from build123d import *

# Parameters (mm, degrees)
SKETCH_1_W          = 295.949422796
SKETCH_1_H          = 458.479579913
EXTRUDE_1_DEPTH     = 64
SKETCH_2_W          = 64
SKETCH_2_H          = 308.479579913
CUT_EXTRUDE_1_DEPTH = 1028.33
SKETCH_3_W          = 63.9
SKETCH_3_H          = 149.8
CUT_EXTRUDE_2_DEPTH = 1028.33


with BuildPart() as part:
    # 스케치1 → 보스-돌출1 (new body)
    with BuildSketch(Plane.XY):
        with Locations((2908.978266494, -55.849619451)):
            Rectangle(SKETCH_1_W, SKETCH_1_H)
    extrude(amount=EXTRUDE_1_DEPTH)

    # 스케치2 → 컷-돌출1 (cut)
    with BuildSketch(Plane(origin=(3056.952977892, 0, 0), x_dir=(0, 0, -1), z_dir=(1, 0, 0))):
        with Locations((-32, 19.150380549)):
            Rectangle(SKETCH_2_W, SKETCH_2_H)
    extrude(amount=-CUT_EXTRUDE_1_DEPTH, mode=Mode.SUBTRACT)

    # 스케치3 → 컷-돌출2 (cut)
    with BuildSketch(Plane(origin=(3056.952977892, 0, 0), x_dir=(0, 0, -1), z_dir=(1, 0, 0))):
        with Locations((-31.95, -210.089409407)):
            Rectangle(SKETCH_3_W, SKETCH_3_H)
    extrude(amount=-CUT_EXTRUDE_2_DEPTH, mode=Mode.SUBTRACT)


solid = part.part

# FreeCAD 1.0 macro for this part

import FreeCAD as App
import Part
import Sketcher

V = App.Vector

doc = App.newDocument("Part")
body = doc.addObject("PartDesign::Body", "Body")

# Sketch on XY plane
sketch1 = body.newObject("Sketcher::SketchObject", "Sketch")
sketch1.AttachmentSupport = (doc.getObject("XY_Plane"), [""])
sketch1.MapMode = "FlatFace"
sketch1.addGeometry([
    Part.LineSegment(V(2761, 173, 0), V(2761, -285, 0)),
    Part.LineSegment(V(2761, -285, 0), V(3057, -285, 0)),
    Part.LineSegment(V(3057, -285, 0), V(3057, 173, 0)),
    Part.LineSegment(V(3057, 173, 0), V(2761, 173, 0)),
], False)
sketch1.addConstraint([
    Sketcher.Constraint("Coincident", 0, 2, 1, 1),
    Sketcher.Constraint("Coincident", 1, 2, 2, 1),
    Sketcher.Constraint("Coincident", 2, 2, 3, 1),
    Sketcher.Constraint("Coincident", 3, 2, 0, 1),
    Sketcher.Constraint("Vertical", 0),
    Sketcher.Constraint("Horizontal", 1),
    Sketcher.Constraint("Vertical", 2),
    Sketcher.Constraint("Horizontal", 3),
    Sketcher.Constraint("DistanceY", 0, 2, 0, 1, 458.47958),
    Sketcher.Constraint("DistanceX", 1, 1, 1, 2, 295.949423),
    Sketcher.Constraint("DistanceY", 0, 2, -1, 1, 285.089409),
    Sketcher.Constraint("DistanceX", -1, 1, 0, 2, 2761.003555),
])
pad1 = body.newObject("PartDesign::Pad", "Pad")
pad1.Profile = sketch1
pad1.Length = 64

# Sketch on YZ plane
sketch2 = body.newObject("Sketcher::SketchObject", "Sketch001")
sketch2.AttachmentSupport = (doc.getObject("YZ_Plane"), [""])
sketch2.MapMode = "FlatFace"
sketch2.AttachmentOffset = App.Placement(V(0, 0, 3056.952978), App.Rotation())
sketch2.addGeometry([
    Part.LineSegment(V(173, 64, 0), V(-135, 64, 0)),
    Part.LineSegment(V(-135, 64, 0), V(-135, 0, 0)),
    Part.LineSegment(V(-135, 0, 0), V(173, 0, 0)),
    Part.LineSegment(V(173, 0, 0), V(173, 64, 0)),
], False)
sketch2.addConstraint([
    Sketcher.Constraint("Coincident", 0, 2, 1, 1),
    Sketcher.Constraint("Coincident", 1, 2, 2, 1),
    Sketcher.Constraint("Coincident", 2, 2, 3, 1),
    Sketcher.Constraint("Coincident", 3, 2, 0, 1),
    Sketcher.Constraint("Horizontal", 0),
    Sketcher.Constraint("Vertical", 1),
    Sketcher.Constraint("Horizontal", 2),
    Sketcher.Constraint("Vertical", 3),
    Sketcher.Constraint("PointOnObject", 1, 2, -1),
    Sketcher.Constraint("DistanceY", 1, 2, 1, 1, 64.0),
    Sketcher.Constraint("DistanceX", 0, 2, 0, 1, 308.47958),
    Sketcher.Constraint("DistanceX", 0, 2, -1, 1, 135.089409),
])
pocket1 = body.newObject("PartDesign::Pocket", "Pocket")
pocket1.Profile = sketch2
pocket1.Length = 1028.33

# Sketch on YZ plane
sketch3 = body.newObject("Sketcher::SketchObject", "Sketch002")
sketch3.AttachmentSupport = (doc.getObject("YZ_Plane"), [""])
sketch3.MapMode = "FlatFace"
sketch3.AttachmentOffset = App.Placement(V(0, 0, 3056.952978), App.Rotation())
sketch3.addGeometry([
    Part.LineSegment(V(-135, 64, 0), V(-285, 64, 0)),
    Part.LineSegment(V(-285, 64, 0), V(-285, 0, 0)),
    Part.LineSegment(V(-285, 0, 0), V(-135, 0, 0)),
    Part.LineSegment(V(-135, 0, 0), V(-135, 64, 0)),
], False)
sketch3.addConstraint([
    Sketcher.Constraint("Coincident", 0, 2, 1, 1),
    Sketcher.Constraint("Coincident", 1, 2, 2, 1),
    Sketcher.Constraint("Coincident", 2, 2, 3, 1),
    Sketcher.Constraint("Coincident", 3, 2, 0, 1),
    Sketcher.Constraint("Horizontal", 0),
    Sketcher.Constraint("Vertical", 1),
    Sketcher.Constraint("Horizontal", 2),
    Sketcher.Constraint("Vertical", 3),
    Sketcher.Constraint("PointOnObject", 1, 2, -1),
    Sketcher.Constraint("DistanceX", 0, 2, 0, 1, 149.8),
    Sketcher.Constraint("DistanceY", 1, 2, 1, 1, 63.9),
    Sketcher.Constraint("DistanceX", 0, 2, -1, 1, 284.989409),
])
pocket2 = body.newObject("PartDesign::Pocket", "Pocket001")
pocket2.Profile = sketch3
pocket2.Length = 1028.33

doc.recompute()
